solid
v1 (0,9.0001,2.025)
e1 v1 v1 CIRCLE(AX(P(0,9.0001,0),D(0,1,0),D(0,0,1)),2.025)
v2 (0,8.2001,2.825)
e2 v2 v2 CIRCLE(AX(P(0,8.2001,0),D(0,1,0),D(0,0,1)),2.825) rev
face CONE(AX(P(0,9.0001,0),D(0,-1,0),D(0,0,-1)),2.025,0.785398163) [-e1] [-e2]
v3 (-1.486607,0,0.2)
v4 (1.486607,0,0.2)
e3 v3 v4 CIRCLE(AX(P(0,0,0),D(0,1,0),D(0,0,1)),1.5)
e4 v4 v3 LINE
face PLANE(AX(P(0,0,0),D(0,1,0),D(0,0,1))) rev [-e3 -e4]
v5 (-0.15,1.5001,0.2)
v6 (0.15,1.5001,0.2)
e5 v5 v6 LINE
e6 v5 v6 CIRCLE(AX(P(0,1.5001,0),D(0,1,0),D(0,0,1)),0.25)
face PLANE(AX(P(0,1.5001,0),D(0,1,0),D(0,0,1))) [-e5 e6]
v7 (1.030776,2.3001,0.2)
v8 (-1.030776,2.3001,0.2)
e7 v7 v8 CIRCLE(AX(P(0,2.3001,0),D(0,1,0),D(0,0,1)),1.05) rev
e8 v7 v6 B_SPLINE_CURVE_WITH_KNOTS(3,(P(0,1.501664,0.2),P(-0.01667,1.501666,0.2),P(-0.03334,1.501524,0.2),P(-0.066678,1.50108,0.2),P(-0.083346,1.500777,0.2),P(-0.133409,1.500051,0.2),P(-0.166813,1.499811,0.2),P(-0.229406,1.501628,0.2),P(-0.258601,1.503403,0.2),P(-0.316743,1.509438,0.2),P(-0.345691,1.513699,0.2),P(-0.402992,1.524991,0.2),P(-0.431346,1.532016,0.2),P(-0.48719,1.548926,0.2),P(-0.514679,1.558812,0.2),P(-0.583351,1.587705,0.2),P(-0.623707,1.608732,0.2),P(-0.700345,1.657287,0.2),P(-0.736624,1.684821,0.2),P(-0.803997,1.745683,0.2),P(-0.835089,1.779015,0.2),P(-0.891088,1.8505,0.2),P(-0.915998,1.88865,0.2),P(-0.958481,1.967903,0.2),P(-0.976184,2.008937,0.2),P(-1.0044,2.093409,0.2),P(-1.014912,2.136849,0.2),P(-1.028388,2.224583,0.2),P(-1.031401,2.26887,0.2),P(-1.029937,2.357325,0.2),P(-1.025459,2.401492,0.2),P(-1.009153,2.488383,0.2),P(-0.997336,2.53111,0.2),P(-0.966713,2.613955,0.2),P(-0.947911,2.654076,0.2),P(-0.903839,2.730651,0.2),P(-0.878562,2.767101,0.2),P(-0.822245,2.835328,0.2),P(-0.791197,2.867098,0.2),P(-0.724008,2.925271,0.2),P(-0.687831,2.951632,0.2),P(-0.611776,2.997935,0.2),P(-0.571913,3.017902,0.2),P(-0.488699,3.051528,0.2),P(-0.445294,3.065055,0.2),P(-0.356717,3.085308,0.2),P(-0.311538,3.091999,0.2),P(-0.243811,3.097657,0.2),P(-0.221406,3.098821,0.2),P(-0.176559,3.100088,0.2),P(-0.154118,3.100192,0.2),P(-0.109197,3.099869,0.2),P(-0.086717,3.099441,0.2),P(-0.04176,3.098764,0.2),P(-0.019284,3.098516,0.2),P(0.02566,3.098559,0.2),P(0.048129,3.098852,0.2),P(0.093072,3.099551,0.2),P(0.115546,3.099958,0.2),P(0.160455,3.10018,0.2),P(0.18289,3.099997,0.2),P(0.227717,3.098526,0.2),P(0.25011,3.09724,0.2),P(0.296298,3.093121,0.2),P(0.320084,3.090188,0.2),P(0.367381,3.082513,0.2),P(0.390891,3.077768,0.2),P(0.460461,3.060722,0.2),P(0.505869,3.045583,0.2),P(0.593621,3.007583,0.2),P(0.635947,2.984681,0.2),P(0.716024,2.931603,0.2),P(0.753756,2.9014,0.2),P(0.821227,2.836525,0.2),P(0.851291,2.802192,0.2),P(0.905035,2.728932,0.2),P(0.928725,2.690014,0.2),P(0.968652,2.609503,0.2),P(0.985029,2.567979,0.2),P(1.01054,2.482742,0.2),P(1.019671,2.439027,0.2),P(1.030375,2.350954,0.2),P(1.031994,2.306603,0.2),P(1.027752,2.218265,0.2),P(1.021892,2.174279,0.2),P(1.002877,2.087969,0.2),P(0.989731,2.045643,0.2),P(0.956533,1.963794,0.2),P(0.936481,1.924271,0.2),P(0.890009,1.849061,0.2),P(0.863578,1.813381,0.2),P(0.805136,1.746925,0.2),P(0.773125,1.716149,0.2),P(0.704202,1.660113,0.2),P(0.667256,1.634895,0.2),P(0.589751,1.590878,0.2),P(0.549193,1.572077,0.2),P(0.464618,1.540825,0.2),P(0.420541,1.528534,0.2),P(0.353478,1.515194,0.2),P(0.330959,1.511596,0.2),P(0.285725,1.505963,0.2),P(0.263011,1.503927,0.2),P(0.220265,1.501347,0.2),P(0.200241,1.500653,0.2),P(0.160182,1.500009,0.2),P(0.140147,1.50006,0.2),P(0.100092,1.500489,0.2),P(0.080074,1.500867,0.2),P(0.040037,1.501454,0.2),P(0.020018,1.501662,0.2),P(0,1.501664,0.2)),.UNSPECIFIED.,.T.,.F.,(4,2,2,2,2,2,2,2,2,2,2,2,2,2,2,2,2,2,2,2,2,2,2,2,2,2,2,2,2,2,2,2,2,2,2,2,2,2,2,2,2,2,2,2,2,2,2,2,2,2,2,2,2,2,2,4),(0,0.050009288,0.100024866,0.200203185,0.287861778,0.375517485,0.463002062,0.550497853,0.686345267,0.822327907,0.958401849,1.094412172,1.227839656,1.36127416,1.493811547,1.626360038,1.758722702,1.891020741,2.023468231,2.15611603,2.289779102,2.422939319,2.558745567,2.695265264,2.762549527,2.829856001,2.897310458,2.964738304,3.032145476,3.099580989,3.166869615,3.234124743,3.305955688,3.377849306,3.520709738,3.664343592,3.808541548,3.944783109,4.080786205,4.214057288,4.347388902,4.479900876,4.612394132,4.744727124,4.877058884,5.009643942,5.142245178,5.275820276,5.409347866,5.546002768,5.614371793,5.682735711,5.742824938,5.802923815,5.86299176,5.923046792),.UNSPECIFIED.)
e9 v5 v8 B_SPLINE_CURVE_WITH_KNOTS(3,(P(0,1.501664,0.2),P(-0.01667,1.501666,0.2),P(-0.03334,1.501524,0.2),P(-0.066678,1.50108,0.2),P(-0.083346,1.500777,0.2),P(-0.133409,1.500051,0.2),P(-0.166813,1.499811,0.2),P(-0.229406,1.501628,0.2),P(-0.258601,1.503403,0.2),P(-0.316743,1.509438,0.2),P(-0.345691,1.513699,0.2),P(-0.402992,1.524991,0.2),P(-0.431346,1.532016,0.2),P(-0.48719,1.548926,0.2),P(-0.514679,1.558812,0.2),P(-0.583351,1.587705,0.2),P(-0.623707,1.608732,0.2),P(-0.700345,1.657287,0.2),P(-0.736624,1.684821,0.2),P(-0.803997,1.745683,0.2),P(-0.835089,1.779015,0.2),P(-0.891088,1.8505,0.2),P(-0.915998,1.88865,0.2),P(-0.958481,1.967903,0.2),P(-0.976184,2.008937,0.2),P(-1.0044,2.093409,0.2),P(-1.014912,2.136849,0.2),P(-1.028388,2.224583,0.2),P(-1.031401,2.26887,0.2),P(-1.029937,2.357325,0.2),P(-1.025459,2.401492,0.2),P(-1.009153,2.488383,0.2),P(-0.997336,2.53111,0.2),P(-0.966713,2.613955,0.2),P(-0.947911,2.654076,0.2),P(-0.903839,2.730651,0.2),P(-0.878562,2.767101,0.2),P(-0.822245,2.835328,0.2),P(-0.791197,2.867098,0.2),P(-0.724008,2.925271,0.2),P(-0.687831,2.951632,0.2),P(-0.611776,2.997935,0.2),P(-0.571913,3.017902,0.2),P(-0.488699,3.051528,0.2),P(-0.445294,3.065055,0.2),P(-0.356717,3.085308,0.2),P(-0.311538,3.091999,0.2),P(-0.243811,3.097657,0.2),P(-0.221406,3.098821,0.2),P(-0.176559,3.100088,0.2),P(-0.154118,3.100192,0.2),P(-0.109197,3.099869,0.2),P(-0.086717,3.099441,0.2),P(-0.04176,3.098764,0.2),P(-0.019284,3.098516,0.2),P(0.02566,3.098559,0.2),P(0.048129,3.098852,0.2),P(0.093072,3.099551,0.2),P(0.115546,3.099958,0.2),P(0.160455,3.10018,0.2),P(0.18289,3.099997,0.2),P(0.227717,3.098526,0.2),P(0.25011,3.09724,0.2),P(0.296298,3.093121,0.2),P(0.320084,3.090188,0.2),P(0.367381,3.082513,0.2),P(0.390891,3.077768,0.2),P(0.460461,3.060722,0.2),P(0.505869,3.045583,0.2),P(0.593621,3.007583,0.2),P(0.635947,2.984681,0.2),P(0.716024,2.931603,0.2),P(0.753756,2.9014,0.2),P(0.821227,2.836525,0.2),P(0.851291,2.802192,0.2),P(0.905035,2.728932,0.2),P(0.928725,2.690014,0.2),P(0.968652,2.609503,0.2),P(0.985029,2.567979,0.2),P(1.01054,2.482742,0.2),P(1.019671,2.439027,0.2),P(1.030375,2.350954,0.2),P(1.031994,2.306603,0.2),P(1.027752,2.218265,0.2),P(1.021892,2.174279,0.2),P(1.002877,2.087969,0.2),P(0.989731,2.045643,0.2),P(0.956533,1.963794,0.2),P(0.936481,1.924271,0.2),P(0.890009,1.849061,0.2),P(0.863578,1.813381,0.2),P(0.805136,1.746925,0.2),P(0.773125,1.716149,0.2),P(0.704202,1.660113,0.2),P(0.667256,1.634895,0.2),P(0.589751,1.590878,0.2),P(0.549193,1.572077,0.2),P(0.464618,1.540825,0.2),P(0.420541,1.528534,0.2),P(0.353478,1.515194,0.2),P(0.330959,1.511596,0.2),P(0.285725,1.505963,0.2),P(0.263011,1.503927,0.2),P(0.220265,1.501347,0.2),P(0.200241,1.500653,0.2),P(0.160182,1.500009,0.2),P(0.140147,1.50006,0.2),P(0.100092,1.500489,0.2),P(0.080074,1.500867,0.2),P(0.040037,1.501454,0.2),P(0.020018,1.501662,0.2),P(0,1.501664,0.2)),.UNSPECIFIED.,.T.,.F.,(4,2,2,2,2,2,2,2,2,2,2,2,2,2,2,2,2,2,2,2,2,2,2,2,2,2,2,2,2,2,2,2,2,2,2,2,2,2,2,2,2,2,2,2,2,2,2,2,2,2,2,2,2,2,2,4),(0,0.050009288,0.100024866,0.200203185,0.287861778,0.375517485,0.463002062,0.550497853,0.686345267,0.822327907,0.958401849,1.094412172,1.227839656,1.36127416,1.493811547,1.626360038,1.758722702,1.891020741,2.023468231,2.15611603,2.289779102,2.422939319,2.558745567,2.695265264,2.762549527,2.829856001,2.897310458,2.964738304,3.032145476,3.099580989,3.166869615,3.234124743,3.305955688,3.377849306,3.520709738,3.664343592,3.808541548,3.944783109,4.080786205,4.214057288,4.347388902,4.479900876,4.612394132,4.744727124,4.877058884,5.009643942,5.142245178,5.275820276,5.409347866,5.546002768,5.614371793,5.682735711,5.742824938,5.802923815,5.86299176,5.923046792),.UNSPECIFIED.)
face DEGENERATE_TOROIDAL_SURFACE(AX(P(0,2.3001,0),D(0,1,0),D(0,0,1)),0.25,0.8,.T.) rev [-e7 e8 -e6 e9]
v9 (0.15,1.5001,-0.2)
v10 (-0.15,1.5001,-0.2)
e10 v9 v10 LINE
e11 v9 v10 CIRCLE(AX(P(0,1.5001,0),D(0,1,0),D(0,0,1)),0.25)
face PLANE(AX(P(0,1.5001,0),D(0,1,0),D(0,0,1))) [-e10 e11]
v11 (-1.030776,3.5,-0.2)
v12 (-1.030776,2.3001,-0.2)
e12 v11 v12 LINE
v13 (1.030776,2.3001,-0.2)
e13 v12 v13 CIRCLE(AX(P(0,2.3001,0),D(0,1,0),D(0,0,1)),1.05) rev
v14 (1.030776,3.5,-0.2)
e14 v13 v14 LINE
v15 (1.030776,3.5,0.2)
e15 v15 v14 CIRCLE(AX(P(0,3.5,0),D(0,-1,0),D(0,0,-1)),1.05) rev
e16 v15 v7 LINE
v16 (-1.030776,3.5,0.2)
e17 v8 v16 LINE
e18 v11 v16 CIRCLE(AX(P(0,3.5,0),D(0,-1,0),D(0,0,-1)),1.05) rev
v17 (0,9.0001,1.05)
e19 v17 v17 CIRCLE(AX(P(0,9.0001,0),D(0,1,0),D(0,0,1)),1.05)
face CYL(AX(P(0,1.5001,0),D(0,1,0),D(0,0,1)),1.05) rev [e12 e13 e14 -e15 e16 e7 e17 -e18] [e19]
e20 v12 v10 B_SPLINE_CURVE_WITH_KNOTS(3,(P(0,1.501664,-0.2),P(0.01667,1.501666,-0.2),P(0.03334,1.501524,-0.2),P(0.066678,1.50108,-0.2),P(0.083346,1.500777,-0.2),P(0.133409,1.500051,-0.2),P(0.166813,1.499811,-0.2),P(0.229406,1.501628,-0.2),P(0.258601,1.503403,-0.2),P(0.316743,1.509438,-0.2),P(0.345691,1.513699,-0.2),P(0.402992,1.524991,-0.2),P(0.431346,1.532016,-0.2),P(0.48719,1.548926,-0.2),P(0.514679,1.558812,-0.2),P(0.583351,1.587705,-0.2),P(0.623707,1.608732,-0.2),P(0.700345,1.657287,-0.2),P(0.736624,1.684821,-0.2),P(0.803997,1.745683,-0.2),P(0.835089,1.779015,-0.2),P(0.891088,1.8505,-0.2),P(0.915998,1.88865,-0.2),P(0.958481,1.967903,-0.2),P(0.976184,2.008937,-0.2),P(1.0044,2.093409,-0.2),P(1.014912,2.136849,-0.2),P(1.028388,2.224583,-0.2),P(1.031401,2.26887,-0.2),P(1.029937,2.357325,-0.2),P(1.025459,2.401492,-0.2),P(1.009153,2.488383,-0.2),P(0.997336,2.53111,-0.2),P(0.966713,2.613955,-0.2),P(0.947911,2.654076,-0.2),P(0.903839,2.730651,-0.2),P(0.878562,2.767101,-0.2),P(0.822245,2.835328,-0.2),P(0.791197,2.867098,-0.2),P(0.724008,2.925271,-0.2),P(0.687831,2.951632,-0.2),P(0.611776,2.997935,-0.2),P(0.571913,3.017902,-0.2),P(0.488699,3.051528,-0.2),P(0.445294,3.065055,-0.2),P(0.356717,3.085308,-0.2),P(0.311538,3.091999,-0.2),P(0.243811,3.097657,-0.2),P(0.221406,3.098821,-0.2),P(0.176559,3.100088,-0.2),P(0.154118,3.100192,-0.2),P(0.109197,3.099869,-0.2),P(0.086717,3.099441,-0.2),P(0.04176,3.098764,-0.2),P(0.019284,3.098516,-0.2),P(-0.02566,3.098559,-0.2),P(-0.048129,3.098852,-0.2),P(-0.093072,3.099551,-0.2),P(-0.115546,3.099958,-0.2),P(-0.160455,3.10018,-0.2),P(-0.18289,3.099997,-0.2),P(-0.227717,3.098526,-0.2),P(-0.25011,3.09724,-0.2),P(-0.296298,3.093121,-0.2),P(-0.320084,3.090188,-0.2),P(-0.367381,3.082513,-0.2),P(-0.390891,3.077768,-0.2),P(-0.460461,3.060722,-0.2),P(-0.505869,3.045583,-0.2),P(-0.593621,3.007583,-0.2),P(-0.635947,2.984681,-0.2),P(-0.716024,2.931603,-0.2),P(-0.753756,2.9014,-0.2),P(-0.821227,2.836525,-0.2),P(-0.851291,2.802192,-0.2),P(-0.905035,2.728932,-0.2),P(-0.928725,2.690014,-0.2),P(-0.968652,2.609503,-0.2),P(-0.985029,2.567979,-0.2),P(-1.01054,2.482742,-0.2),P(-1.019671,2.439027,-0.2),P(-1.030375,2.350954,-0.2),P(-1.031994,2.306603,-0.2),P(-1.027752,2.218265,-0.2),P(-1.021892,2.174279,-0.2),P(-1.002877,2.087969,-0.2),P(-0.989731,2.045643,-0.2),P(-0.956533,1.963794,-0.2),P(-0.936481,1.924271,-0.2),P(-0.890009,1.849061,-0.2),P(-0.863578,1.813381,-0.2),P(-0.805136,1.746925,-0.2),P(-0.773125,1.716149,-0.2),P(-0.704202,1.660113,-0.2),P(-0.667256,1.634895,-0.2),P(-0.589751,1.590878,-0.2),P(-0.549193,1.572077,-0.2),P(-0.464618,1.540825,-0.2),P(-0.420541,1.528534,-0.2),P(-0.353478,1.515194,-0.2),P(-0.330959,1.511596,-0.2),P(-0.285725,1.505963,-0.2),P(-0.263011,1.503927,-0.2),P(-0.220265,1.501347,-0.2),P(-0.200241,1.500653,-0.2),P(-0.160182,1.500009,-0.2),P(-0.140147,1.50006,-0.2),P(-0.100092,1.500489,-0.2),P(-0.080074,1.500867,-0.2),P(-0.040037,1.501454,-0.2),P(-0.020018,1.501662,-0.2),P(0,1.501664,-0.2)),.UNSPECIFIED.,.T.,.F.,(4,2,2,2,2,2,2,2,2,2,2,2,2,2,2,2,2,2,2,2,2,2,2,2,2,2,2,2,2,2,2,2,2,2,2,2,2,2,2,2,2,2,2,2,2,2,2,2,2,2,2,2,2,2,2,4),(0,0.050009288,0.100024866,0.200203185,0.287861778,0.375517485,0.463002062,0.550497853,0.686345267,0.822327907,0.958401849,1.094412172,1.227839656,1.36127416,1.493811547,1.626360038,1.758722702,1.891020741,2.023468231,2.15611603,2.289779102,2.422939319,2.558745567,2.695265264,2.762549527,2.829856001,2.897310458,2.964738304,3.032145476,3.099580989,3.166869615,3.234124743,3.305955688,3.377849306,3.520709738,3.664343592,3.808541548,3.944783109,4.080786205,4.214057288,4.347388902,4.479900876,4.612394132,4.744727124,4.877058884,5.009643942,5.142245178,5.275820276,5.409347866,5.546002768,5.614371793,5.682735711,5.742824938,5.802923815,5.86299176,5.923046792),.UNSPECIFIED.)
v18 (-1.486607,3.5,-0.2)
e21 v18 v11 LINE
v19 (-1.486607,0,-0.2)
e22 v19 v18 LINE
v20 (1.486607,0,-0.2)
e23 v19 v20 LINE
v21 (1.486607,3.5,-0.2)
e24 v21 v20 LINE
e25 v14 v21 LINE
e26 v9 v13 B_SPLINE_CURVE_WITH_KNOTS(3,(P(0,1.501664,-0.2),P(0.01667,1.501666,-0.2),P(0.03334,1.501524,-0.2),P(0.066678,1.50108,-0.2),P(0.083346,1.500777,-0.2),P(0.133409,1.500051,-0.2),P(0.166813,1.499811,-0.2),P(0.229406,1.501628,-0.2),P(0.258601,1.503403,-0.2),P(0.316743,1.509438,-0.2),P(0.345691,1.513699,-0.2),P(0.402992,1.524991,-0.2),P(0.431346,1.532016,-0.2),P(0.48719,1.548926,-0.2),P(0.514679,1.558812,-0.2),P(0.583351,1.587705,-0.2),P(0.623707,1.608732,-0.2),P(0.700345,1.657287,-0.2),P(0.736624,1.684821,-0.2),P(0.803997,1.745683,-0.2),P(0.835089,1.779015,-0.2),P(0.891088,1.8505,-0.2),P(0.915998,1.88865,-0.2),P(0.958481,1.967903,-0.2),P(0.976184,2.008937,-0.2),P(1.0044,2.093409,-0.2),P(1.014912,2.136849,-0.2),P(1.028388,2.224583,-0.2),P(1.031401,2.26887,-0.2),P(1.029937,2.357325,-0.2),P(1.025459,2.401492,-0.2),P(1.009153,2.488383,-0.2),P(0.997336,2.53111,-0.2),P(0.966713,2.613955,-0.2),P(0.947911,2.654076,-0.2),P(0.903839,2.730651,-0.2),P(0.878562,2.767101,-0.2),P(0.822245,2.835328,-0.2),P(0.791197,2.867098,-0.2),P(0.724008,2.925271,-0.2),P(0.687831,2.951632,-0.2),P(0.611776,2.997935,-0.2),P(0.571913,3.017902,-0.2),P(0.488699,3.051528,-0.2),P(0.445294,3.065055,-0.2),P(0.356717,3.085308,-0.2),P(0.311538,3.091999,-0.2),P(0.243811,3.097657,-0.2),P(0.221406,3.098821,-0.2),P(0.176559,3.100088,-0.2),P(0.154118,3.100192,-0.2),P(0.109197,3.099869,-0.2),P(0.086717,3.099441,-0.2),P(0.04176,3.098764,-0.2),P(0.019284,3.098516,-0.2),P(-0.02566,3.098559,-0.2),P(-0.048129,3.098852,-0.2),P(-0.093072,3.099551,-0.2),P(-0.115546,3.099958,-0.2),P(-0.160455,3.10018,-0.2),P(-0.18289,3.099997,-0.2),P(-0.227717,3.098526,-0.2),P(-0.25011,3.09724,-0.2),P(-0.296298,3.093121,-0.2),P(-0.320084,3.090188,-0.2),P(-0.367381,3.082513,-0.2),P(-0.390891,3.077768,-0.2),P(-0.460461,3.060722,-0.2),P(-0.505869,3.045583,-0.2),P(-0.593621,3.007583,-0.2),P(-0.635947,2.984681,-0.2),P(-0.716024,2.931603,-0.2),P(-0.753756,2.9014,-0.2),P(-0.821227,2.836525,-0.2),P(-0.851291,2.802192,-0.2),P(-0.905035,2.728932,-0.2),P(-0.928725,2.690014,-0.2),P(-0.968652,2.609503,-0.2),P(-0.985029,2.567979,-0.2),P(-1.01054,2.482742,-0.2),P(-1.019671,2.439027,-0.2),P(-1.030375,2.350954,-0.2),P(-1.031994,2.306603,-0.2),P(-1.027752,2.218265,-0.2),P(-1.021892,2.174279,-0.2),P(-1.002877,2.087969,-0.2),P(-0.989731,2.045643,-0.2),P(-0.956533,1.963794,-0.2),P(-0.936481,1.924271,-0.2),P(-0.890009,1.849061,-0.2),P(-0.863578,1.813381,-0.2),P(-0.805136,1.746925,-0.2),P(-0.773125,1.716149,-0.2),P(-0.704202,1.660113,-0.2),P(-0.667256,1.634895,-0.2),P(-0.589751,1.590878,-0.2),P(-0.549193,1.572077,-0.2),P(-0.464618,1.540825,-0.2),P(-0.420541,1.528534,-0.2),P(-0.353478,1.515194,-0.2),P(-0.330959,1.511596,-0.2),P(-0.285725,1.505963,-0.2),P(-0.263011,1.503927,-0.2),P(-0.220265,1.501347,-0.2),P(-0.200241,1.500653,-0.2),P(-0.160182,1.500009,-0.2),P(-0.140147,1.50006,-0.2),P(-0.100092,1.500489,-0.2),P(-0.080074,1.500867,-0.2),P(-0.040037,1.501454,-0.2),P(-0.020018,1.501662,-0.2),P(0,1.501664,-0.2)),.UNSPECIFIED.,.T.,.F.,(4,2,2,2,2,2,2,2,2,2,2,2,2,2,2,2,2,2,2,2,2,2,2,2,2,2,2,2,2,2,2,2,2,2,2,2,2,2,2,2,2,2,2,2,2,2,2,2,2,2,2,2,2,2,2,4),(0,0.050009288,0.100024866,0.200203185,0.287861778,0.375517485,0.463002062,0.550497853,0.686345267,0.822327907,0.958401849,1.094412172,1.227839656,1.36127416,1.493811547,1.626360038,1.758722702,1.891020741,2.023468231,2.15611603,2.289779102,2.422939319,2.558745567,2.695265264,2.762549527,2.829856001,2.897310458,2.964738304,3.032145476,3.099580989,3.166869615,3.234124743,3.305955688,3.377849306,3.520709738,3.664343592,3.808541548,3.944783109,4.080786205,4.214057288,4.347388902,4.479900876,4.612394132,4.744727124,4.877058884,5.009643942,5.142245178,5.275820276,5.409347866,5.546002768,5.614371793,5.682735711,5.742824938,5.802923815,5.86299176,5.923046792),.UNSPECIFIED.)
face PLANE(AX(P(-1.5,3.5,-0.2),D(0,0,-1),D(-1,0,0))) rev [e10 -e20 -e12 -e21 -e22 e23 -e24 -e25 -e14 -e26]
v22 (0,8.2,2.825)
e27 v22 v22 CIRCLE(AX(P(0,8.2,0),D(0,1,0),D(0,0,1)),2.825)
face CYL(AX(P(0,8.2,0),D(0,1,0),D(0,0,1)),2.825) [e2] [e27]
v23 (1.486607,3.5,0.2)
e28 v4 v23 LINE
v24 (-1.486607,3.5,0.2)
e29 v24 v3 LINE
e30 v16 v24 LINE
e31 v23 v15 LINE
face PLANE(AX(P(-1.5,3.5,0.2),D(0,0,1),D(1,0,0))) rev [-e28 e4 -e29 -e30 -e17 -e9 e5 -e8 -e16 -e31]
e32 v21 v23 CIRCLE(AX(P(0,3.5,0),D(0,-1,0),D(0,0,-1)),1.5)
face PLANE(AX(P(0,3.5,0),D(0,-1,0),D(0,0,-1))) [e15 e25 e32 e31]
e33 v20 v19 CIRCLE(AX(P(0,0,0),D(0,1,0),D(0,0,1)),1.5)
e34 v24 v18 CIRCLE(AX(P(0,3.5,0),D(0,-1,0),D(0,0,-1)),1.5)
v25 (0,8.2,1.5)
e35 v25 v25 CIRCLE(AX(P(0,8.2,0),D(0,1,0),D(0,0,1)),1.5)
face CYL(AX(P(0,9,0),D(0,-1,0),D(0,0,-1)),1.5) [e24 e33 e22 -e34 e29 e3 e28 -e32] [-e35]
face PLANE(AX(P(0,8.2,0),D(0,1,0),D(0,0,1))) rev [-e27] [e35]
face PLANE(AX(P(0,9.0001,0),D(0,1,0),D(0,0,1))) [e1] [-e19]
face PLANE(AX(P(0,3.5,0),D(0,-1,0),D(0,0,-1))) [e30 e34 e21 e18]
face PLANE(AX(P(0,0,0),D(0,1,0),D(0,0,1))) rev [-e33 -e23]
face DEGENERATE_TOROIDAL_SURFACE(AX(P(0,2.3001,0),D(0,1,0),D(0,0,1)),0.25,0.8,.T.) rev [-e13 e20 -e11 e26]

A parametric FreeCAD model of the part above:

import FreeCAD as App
import Part
import Sketcher

V = App.Vector


def edges_at(feature, points):
    """Names of the edges that pass closest to the given points."""
    edges = feature.Shape.Edges
    near = lambda p: min(range(len(edges)), key=lambda i: edges[i].distToShape(Part.Vertex(*p))[0])
    return sorted({f"Edge{near(p) + 1}" for p in points})

doc = App.newDocument("Part")
body = doc.addObject("PartDesign::Body", "Body")

# Sketch on XZ plane
sketch1 = body.newObject("Sketcher::SketchObject", "Sketch")
sketch1.AttachmentSupport = (doc.getObject("XZ_Plane"), [""])
sketch1.MapMode = "FlatFace"
sketch1.addGeometry(Part.Circle(V(0, 0, 0), V(0, 0, 1), 1.5), False)
sketch1.addConstraint([
    Sketcher.Constraint("Coincident", 0, 3, -1, 1),
    Sketcher.Constraint("Diameter", 0, 3.0),
])
pad1 = body.newObject("PartDesign::Pad", "Pad")
pad1.Profile = sketch1
pad1.Length = 9
pad1.Reversed = True

# Sketch on XZ plane
sketch2 = body.newObject("Sketcher::SketchObject", "Sketch001")
sketch2.AttachmentSupport = (doc.getObject("XZ_Plane"), [""])
sketch2.MapMode = "FlatFace"
sketch2.AttachmentOffset = App.Placement(V(0, 0, -9), App.Rotation())
sketch2.addGeometry(Part.Circle(V(0, 0, 0), V(0, 0, 1), 2.8), False)
sketch2.addConstraint([
    Sketcher.Constraint("Coincident", 0, 3, -1, 1),
    Sketcher.Constraint("Diameter", 0, 5.65),
])
pad2 = body.newObject("PartDesign::Pad", "Pad001")
pad2.Profile = sketch2
pad2.Type = "TwoLengths"
pad2.Length = 0.0001
pad2.Length2 = 0.8
pad2.Reversed = True
doc.recompute()

chamfer = body.newObject("PartDesign::Chamfer", "Chamfer")
chamfer.Base = (pad2, edges_at(pad2, [(0, 9, -2.825)]))
chamfer.Size = 0.8

# Sketch on XZ plane
sketch3 = body.newObject("Sketcher::SketchObject", "Sketch002")
sketch3.AttachmentSupport = (doc.getObject("XZ_Plane"), [""])
sketch3.MapMode = "FlatFace"
sketch3.AttachmentOffset = App.Placement(V(0, 0, -9.0001), App.Rotation())
sketch3.addGeometry(Part.Circle(V(0, 0, 0), V(0, 0, 1), 1.1), False)
sketch3.addConstraint([
    Sketcher.Constraint("Coincident", 0, 3, -1, 1),
    Sketcher.Constraint("Diameter", 0, 2.1),
])
pocket1 = body.newObject("PartDesign::Pocket", "Pocket")
pocket1.Profile = sketch3
pocket1.Length = 7.5
pocket1.Reversed = True
doc.recompute()

fillet = body.newObject("PartDesign::Fillet", "Fillet")
fillet.Base = (pocket1, edges_at(pocket1, [(0, 1.5, -1.05)]))
fillet.Radius = 0.8

# Sketch on XZ plane
sketch4 = body.newObject("Sketcher::SketchObject", "Sketch003")
sketch4.AttachmentSupport = (doc.getObject("XZ_Plane"), [""])
sketch4.MapMode = "FlatFace"
sketch4.addGeometry([
    Part.LineSegment(V(1.5, -0.2, 0), V(1.5, 0.2, 0)),
    Part.LineSegment(V(1.5, 0.2, 0), V(-1.5, 0.2, 0)),
    Part.LineSegment(V(-1.5, 0.2, 0), V(-1.5, -0.2, 0)),
    Part.LineSegment(V(-1.5, -0.2, 0), V(1.5, -0.2, 0)),
], False)
sketch4.addConstraint([
    Sketcher.Constraint("Coincident", 0, 2, 1, 1),
    Sketcher.Constraint("Coincident", 1, 2, 2, 1),
    Sketcher.Constraint("Coincident", 2, 2, 3, 1),
    Sketcher.Constraint("Coincident", 3, 2, 0, 1),
    Sketcher.Constraint("Vertical", 0),
    Sketcher.Constraint("Horizontal", 1),
    Sketcher.Constraint("Vertical", 2),
    Sketcher.Constraint("Horizontal", 3),
    Sketcher.Constraint("Symmetric", 0, 2, 2, 2, -1, 1),
    Sketcher.Constraint("DistanceX", 1, 2, 1, 1, 3.0),
    Sketcher.Constraint("DistanceY", 0, 1, 0, 2, 0.4),
])
pocket2 = body.newObject("PartDesign::Pocket", "Pocket001")
pocket2.Profile = sketch4
pocket2.Length = 3.5

doc.recompute()
